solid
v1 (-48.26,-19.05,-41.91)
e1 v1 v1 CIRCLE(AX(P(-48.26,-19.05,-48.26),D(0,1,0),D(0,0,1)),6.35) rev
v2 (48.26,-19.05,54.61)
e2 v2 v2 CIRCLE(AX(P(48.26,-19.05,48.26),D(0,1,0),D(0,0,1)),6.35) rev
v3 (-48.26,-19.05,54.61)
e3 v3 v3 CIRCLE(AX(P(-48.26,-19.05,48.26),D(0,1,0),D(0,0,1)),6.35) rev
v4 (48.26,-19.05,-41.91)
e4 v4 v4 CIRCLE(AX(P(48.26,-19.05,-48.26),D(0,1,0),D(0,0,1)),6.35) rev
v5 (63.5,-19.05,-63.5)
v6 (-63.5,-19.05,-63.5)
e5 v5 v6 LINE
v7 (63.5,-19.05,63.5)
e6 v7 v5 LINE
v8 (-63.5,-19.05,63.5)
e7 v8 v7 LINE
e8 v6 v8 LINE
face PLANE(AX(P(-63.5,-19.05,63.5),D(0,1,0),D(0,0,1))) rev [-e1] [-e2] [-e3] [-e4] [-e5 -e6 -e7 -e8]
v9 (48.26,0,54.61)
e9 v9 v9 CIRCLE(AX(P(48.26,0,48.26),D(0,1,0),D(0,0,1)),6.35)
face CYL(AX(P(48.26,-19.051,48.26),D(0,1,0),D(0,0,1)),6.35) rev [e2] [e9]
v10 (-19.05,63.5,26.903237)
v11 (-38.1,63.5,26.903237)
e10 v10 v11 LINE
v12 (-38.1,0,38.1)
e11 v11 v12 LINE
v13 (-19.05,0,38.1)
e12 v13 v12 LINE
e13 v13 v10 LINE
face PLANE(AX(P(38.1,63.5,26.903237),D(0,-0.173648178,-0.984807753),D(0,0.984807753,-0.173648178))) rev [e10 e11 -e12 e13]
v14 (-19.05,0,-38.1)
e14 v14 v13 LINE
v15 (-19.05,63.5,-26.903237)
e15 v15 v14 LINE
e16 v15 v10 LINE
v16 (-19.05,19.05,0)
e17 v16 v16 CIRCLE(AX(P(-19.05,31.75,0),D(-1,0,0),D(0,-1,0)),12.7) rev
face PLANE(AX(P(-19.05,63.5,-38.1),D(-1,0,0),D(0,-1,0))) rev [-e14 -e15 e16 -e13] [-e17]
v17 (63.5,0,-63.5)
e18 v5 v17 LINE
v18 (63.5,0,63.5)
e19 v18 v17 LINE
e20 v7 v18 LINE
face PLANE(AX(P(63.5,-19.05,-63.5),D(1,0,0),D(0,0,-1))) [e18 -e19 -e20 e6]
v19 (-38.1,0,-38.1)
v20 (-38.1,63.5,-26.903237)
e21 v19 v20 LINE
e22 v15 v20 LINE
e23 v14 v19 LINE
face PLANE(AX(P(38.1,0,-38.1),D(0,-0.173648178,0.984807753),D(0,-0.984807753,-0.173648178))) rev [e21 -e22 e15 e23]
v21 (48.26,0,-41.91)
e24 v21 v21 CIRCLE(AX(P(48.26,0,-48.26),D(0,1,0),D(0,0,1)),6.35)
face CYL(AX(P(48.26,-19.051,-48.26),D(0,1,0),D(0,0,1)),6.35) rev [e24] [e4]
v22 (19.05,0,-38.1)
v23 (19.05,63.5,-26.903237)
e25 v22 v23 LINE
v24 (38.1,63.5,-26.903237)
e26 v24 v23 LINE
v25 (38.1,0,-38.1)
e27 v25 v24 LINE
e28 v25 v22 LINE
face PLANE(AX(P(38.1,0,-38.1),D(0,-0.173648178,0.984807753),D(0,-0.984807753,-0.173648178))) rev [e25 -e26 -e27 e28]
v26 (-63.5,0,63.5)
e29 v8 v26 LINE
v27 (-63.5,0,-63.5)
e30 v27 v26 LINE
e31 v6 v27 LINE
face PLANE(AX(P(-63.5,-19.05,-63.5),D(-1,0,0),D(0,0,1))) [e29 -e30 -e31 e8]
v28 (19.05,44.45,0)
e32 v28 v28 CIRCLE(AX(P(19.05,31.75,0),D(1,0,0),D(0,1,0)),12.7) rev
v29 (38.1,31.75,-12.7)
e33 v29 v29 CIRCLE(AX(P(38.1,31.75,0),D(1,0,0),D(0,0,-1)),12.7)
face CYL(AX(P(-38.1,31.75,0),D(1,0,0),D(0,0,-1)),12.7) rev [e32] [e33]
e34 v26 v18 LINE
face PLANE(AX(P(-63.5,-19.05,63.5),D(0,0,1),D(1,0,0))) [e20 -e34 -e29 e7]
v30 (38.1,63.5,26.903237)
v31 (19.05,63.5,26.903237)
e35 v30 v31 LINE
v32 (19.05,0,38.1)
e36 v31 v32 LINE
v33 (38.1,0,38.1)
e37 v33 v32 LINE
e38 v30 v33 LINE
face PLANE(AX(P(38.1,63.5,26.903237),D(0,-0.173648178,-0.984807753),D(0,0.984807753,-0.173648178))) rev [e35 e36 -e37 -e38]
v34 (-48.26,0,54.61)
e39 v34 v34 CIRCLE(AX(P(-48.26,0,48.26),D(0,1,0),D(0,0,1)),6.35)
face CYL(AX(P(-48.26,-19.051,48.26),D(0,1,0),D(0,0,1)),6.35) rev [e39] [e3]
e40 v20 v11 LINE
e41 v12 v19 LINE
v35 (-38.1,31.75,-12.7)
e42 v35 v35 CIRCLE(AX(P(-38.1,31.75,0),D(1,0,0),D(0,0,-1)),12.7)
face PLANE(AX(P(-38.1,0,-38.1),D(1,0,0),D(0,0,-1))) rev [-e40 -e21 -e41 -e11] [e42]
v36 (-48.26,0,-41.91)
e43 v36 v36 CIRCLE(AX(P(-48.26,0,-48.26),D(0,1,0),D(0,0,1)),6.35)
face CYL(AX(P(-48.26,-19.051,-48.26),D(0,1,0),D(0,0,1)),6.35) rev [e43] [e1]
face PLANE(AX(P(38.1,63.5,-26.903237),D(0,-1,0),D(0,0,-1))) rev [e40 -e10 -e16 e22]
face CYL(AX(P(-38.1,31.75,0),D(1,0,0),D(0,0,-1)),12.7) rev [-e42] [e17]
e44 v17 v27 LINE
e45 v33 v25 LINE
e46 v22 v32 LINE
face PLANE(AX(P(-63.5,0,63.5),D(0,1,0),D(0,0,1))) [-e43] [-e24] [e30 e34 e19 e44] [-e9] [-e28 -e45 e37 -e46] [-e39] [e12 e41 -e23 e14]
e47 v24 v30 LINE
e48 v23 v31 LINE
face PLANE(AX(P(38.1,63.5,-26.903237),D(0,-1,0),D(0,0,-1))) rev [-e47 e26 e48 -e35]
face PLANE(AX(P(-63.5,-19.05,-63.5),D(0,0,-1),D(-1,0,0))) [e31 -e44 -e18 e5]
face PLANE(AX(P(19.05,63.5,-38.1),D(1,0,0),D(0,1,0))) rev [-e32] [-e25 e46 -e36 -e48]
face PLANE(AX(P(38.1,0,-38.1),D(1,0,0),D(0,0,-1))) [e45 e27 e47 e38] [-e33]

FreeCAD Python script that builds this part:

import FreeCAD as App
import Part
import Sketcher
Q = App.Units.Quantity

doc = App.newDocument("Part")
body = doc.addObject("PartDesign::Body", "Body")

# Sketch on XZ plane
sketch1 = doc.addObject("Sketcher::SketchObject", "Sketch")
body.addObject(sketch1)
sketch1.AttachmentSupport = (doc.XZ_Plane, [""])
sketch1.MapMode = "FlatFace"
sketch1.addGeometry([
    Part.LineSegment(App.Vector(-63.5, -63.5, 0), App.Vector(-63.5, 63.5, 0)),
    Part.LineSegment(App.Vector(-63.5, 63.5, 0), App.Vector(63.5, 63.5, 0)),
    Part.LineSegment(App.Vector(63.5, 63.5, 0), App.Vector(63.5, -63.5, 0)),
    Part.LineSegment(App.Vector(63.5, -63.5, 0), App.Vector(-63.5, -63.5, 0)),
], False)
sketch1.addConstraint([
    Sketcher.Constraint("Coincident", 0, 2, 1, 1),
    Sketcher.Constraint("Coincident", 1, 2, 2, 1),
    Sketcher.Constraint("Coincident", 2, 2, 3, 1),
    Sketcher.Constraint("Coincident", 3, 2, 0, 1),
    Sketcher.Constraint("Vertical", 0),
    Sketcher.Constraint("Horizontal", 1),
    Sketcher.Constraint("Vertical", 2),
    Sketcher.Constraint("Horizontal", 3),
    Sketcher.Constraint("Symmetric", 0, 2, 2, 2, -1, 1),
    Sketcher.Constraint("Equal", 3, 0),
    Sketcher.Constraint("DistanceX", 1, 1, 1, 2, Q("5 in")),
])
pad1 = doc.addObject("PartDesign::Pad", "Pad")
body.addObject(pad1)
pad1.Profile = sketch1
pad1.Length = Q("0.75 in")

# Sketch on YZ plane
sketch2 = doc.addObject("Sketcher::SketchObject", "Sketch001")
body.addObject(sketch2)
sketch2.AttachmentSupport = (doc.YZ_Plane, [""])
sketch2.MapMode = "FlatFace"
sketch2.addGeometry([
    Part.LineSegment(App.Vector(0, -38.1, 0), App.Vector(63.5, -26.903237, 0)),
    Part.LineSegment(App.Vector(63.5, -26.903237, 0), App.Vector(63.5, 26.903237, 0)),
    Part.LineSegment(App.Vector(63.5, 26.903237, 0), App.Vector(0, 38.1, 0)),
    Part.LineSegment(App.Vector(0, 38.1, 0), App.Vector(0, -38.1, 0)),
], False)
sketch2.addConstraint([
    Sketcher.Constraint("Coincident", 0, 2, 1, 1),
    Sketcher.Constraint("Coincident", 1, 2, 2, 1),
    Sketcher.Constraint("Coincident", 2, 2, 3, 1),
    Sketcher.Constraint("Coincident", 3, 2, 0, 1),
    Sketcher.Constraint("Vertical", 1),
    Sketcher.Constraint("Vertical", 3),
    Sketcher.Constraint("Symmetric", 2, 2, 3, 2, -1, 1),
    Sketcher.Constraint("Equal", 0, 2),
    Sketcher.Constraint("DistanceY", 3, 2, 3, 1, Q("3 in")),
    Sketcher.Constraint("Angle", 0, Q("10 deg")),
    Sketcher.Constraint("DistanceX", -1, 1, 0, 2, Q("2.5 in")),
])
pad2 = doc.addObject("PartDesign::Pad", "Pad001")
body.addObject(pad2)
pad2.Profile = sketch2
pad2.Length = Q("3 in")
pad2.Midplane = True

# Sketch on YZ plane
sketch3 = doc.addObject("Sketcher::SketchObject", "Sketch002")
body.addObject(sketch3)
sketch3.AttachmentSupport = (doc.YZ_Plane, [""])
sketch3.MapMode = "FlatFace"
sketch3.addGeometry(Part.Circle(App.Vector(31.75, 0, 0), App.Vector(0, 0, 1), 12.7), False)
sketch3.addConstraint([
    Sketcher.Constraint("PointOnObject", 0, 3, -1),
    Sketcher.Constraint("Diameter", 0, Q("1 in")),
    Sketcher.Constraint("DistanceX", -1, 1, 0, 3, Q("1.25 in")),
])
pocket1 = doc.addObject("PartDesign::Pocket", "Pocket")
body.addObject(pocket1)
pocket1.Profile = sketch3
pocket1.Length = Q("3 in")
pocket1.Midplane = True

# Sketch on XY plane
sketch4 = doc.addObject("Sketcher::SketchObject", "Sketch003")
body.addObject(sketch4)
sketch4.AttachmentSupport = (doc.XY_Plane, [""])
sketch4.MapMode = "FlatFace"
sketch4.addGeometry([
    Part.LineSegment(App.Vector(-19.05, 63.5, 0), App.Vector(-19.05, 0, 0)),
    Part.LineSegment(App.Vector(-19.05, 0, 0), App.Vector(19.05, 0, 0)),
    Part.LineSegment(App.Vector(19.05, 0, 0), App.Vector(19.05, 63.5, 0)),
    Part.LineSegment(App.Vector(19.05, 63.5, 0), App.Vector(-19.05, 63.5, 0)),
], False)
sketch4.addConstraint([
    Sketcher.Constraint("Coincident", 0, 2, 1, 1),
    Sketcher.Constraint("Coincident", 1, 2, 2, 1),
    Sketcher.Constraint("Coincident", 2, 2, 3, 1),
    Sketcher.Constraint("Coincident", 3, 2, 0, 1),
    Sketcher.Constraint("Vertical", 0),
    Sketcher.Constraint("Horizontal", 1),
    Sketcher.Constraint("Vertical", 2),
    Sketcher.Constraint("Horizontal", 3),
    Sketcher.Constraint("Symmetric", 0, 2, 1, 2, -1, 1),
    Sketcher.Constraint("DistanceX", 1, 1, 1, 2, Q("1.5 in")),
    Sketcher.Constraint("DistanceY", 0, 2, 0, 1, Q("2.5 in")),
])
pocket2 = doc.addObject("PartDesign::Pocket", "Pocket001")
body.addObject(pocket2)
pocket2.Profile = sketch4
pocket2.Length = Q("3 in")
pocket2.Midplane = True

# Sketch on XZ plane
sketch5 = doc.addObject("Sketcher::SketchObject", "Sketch004")
body.addObject(sketch5)
sketch5.AttachmentSupport = (doc.XZ_Plane, [""])
sketch5.MapMode = "FlatFace"
sketch5.addGeometry(Part.Circle(App.Vector(-48.26, -48.26, 0), App.Vector(0, 0, 1), 6.35), False)
sketch5.addConstraint([
    Sketcher.Constraint("Diameter", 0, Q("0.5 in")),
    Sketcher.Constraint("DistanceX", 0, 3, -1, 1, Q("1.9 in")),
    Sketcher.Constraint("DistanceY", 0, 3, -1, 1, Q("1.9 in")),
])
pocket3 = doc.addObject("PartDesign::Pocket", "Pocket002")
body.addObject(pocket3)
pocket3.Profile = sketch5
pocket3.Type = "UpToFirst"
pocket3.Reversed = True

# Sketch on XZ plane
sketch6 = doc.addObject("Sketcher::SketchObject", "Sketch005")
body.addObject(sketch6)
sketch6.AttachmentSupport = (doc.XZ_Plane, [""])
sketch6.MapMode = "FlatFace"
sketch6.addGeometry(Part.Circle(App.Vector(48.26, -48.26, 0), App.Vector(0, 0, 1), 6.35), False)
sketch6.addConstraint([
    Sketcher.Constraint("Diameter", 0, Q("0.5 in")),
    Sketcher.Constraint("DistanceX", -1, 1, 0, 3, Q("1.9 in")),
    Sketcher.Constraint("DistanceY", 0, 3, -1, 1, Q("1.9 in")),
])
pocket4 = doc.addObject("PartDesign::Pocket", "Pocket003")
body.addObject(pocket4)
pocket4.Profile = sketch6
pocket4.Type = "UpToFirst"
pocket4.Reversed = True

# Sketch on XZ plane
sketch7 = doc.addObject("Sketcher::SketchObject", "Sketch006")
body.addObject(sketch7)
sketch7.AttachmentSupport = (doc.XZ_Plane, [""])
sketch7.MapMode = "FlatFace"
sketch7.addGeometry(Part.Circle(App.Vector(-48.26, 48.26, 0), App.Vector(0, 0, 1), 6.35), False)
sketch7.addConstraint([
    Sketcher.Constraint("Diameter", 0, Q("0.5 in")),
    Sketcher.Constraint("DistanceX", 0, 3, -1, 1, Q("1.9 in")),
    Sketcher.Constraint("DistanceY", -1, 1, 0, 3, Q("1.9 in")),
])
pocket5 = doc.addObject("PartDesign::Pocket", "Pocket004")
body.addObject(pocket5)
pocket5.Profile = sketch7
pocket5.Type = "UpToFirst"
pocket5.Reversed = True

# Sketch on XZ plane
sketch8 = doc.addObject("Sketcher::SketchObject", "Sketch007")
body.addObject(sketch8)
sketch8.AttachmentSupport = (doc.XZ_Plane, [""])
sketch8.MapMode = "FlatFace"
sketch8.addGeometry(Part.Circle(App.Vector(48.26, 48.26, 0), App.Vector(0, 0, 1), 6.35), False)
sketch8.addConstraint([
    Sketcher.Constraint("Diameter", 0, Q("0.5 in")),
    Sketcher.Constraint("DistanceX", -1, 1, 0, 3, Q("1.9 in")),
    Sketcher.Constraint("DistanceY", -1, 1, 0, 3, Q("1.9 in")),
])
pocket6 = doc.addObject("PartDesign::Pocket", "Pocket005")
body.addObject(pocket6)
pocket6.Profile = sketch8
pocket6.Type = "UpToFirst"
pocket6.Reversed = True

doc.recompute()
